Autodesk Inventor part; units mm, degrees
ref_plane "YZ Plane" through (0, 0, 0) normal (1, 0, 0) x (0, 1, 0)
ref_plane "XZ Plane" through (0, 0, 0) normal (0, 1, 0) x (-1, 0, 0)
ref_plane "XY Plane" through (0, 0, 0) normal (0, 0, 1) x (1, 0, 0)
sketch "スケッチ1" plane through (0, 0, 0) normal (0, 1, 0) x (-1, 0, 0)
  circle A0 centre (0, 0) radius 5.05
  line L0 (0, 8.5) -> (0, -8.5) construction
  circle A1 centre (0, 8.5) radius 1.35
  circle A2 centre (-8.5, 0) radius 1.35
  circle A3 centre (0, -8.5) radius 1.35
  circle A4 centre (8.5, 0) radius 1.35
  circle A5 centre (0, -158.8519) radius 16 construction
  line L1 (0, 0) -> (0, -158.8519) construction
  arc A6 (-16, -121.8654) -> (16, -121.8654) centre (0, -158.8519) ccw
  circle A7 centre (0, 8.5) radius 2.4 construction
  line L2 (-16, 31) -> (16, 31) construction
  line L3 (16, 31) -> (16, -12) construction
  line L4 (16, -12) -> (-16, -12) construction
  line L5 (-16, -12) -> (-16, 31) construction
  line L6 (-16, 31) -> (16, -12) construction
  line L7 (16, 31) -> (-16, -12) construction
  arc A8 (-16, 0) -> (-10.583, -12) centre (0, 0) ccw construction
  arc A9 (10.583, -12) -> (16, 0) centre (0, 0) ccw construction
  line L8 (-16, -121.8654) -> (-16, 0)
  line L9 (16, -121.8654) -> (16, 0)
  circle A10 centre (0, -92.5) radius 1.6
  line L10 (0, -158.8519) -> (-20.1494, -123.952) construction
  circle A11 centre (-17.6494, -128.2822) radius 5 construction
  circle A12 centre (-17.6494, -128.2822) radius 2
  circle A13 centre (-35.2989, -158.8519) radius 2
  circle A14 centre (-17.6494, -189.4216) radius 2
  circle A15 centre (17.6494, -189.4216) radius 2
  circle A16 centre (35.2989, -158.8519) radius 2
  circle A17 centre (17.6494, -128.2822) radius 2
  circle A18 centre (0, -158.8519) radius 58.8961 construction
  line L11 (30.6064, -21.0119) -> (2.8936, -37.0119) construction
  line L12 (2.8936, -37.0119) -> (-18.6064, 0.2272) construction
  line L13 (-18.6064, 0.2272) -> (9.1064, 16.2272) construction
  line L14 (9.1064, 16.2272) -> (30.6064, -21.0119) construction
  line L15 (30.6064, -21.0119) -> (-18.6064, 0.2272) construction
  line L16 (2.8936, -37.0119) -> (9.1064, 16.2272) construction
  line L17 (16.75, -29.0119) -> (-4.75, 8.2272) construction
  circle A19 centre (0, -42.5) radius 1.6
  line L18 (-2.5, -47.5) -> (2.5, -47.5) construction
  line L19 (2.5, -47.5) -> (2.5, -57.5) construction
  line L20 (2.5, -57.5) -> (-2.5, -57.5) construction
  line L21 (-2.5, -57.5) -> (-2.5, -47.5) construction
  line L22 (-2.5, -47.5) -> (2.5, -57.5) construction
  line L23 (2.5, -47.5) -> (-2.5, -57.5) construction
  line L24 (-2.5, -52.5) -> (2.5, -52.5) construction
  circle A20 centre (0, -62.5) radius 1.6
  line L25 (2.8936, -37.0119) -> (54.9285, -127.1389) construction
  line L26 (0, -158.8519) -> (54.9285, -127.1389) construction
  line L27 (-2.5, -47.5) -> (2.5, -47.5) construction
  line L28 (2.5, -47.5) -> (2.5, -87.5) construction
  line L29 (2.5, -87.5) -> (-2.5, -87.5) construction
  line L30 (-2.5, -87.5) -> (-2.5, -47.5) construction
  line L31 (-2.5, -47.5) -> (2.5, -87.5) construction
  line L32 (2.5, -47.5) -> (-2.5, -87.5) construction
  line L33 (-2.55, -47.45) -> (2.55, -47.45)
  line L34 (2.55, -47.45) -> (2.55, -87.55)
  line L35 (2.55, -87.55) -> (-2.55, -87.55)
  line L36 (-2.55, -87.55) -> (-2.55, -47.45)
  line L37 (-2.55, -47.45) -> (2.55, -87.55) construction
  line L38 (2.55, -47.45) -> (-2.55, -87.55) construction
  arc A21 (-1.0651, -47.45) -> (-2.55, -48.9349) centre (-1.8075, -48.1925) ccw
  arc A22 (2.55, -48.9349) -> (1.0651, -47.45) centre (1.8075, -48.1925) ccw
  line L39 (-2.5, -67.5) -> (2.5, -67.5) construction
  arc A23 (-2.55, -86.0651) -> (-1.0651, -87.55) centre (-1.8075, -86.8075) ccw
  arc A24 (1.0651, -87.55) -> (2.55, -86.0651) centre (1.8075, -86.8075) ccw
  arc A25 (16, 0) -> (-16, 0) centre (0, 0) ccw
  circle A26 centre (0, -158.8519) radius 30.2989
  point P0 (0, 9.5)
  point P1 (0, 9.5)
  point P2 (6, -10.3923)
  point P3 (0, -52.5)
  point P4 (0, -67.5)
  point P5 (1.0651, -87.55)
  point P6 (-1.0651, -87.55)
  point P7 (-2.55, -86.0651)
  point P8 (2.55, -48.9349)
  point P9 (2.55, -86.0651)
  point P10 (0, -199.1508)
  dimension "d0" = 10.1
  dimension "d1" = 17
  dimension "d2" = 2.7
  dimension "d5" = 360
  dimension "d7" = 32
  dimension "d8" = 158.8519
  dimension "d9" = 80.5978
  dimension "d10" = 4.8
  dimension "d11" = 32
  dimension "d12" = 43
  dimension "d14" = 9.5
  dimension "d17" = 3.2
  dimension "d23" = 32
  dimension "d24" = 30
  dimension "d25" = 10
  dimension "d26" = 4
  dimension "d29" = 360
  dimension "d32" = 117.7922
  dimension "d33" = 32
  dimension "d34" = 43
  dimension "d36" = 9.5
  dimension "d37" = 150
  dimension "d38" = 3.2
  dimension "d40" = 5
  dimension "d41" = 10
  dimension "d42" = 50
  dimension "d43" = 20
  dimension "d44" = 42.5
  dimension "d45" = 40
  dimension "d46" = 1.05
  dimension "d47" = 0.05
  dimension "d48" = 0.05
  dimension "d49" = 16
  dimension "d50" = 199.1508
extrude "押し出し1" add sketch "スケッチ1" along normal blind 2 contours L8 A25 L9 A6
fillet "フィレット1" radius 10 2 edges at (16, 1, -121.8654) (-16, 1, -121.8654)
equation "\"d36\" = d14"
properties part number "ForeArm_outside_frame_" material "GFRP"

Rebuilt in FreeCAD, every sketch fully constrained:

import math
import FreeCAD as App
import Part
import Sketcher
from FreeCAD import Vector


def edges_at(feature, points):
    """Names of the edges that pass closest to the given points."""
    edges = feature.Shape.Edges
    near = lambda p: min(range(len(edges)), key=lambda i: edges[i].distToShape(Part.Vertex(*p))[0])
    return sorted({f"Edge{near(p) + 1}" for p in points})

doc = App.newDocument("Part")
params = doc.addObject("Spreadsheet::Sheet", "Params")
for row, (alias, value) in enumerate([
    ("sketch1_diameter", "4 mm"),
    ("sketch1_radius", "16 mm"),
    ("sketch1_diameter2", "3.2 mm"),
    ("sketch1_diameter3", "2.7 mm"),
    ("sketch1_diameter4", "10.1 mm"),
    ("pad1_length", "2 mm"),
    ("fillet_radius", "10 mm"),
], start=1):
    params.set(f"A{row}", alias)
    params.set(f"B{row}", "=" + value)
    params.setAlias(f"B{row}", alias)

body = doc.addObject("PartDesign::Body", "Body")

sketch1 = body.newObject("Sketcher::SketchObject", "Sketch")
sketch1.AttachmentSupport = (doc.getObject("XZ_Plane"), [""])
sketch1.MapMode = "FlatFace"
sketch1.addGeometry([
    Part.LineSegment(Vector(16, 0, 0), Vector(16, -121.9, 0)),
    Part.ArcOfCircle(Part.Circle(Vector(0, -158.9, 0), Vector(0, 0, 1), 40.3), math.radians(113), math.radians(427)),
    Part.LineSegment(Vector(-16, -121.9, 0), Vector(-16, 0, 0)),
    Part.ArcOfCircle(Part.Circle(Vector(0, 0, 0), Vector(0, 0, 1), 16), math.radians(0), math.radians(180)),
    Part.Circle(Vector(35.3, -158.9, 0), Vector(0, 0, 1), 2),
    Part.Circle(Vector(17.6, -189.4, 0), Vector(0, 0, 1), 2),
    Part.Circle(Vector(17.6, -128.3, 0), Vector(0, 0, 1), 2),
    Part.Circle(Vector(-17.6, -189.4, 0), Vector(0, 0, 1), 2),
    Part.Circle(Vector(0, -158.9, 0), Vector(0, 0, 1), 30.3),
    Part.Circle(Vector(-35.3, -158.9, 0), Vector(0, 0, 1), 2),
    Part.Circle(Vector(-17.6, -128.3, 0), Vector(0, 0, 1), 2),
    Part.Circle(Vector(0, -92.5, 0), Vector(0, 0, 1), 1.6),
    Part.Circle(Vector(8.5, 0, 0), Vector(0, 0, 1), 1.4),
    Part.ArcOfCircle(Part.Circle(Vector(1.8, -48.2, 0), Vector(0, 0, 1), 1), math.radians(-45), math.radians(135)),
    Part.LineSegment(Vector(1.1, -47.5, 0), Vector(-1.1, -47.5, 0)),
    Part.ArcOfCircle(Part.Circle(Vector(-1.8, -48.2, 0), Vector(0, 0, 1), 1), math.radians(45), math.radians(225)),
    Part.LineSegment(Vector(-2.5, -48.9, 0), Vector(-2.5, -86.1, 0)),
    Part.ArcOfCircle(Part.Circle(Vector(-1.8, -86.8, 0), Vector(0, 0, 1), 1), math.radians(135), math.radians(315)),
    Part.LineSegment(Vector(-1.1, -87.5, 0), Vector(1.1, -87.5, 0)),
    Part.ArcOfCircle(Part.Circle(Vector(1.8, -86.8, 0), Vector(0, 0, 1), 1), math.radians(-135), math.radians(45)),
    Part.LineSegment(Vector(2.5, -86.1, 0), Vector(2.5, -48.9, 0)),
    Part.Circle(Vector(0, -42.5, 0), Vector(0, 0, 1), 1.6),
    Part.Circle(Vector(0, -8.5, 0), Vector(0, 0, 1), 1.4),
    Part.Circle(Vector(0, 0, 0), Vector(0, 0, 1), 5),
    Part.Circle(Vector(-8.5, 0, 0), Vector(0, 0, 1), 1.4),
    Part.Circle(Vector(0, 8.5, 0), Vector(0, 0, 1), 1.4),
], False)
sketch1.addConstraint([
    Sketcher.Constraint("Coincident", 0, 2, 1, 2),
    Sketcher.Constraint("Coincident", 1, 1, 2, 1),
    Sketcher.Constraint("Tangent", 2, 2, 3, 2),
    Sketcher.Constraint("Tangent", 3, 1, 0, 1),
    Sketcher.Constraint("Coincident", 13, 2, 14, 1),
    Sketcher.Constraint("Coincident", 14, 2, 15, 1),
    Sketcher.Constraint("Coincident", 15, 2, 16, 1),
    Sketcher.Constraint("Coincident", 16, 2, 17, 1),
    Sketcher.Constraint("Coincident", 17, 2, 18, 1),
    Sketcher.Constraint("Coincident", 18, 2, 19, 1),
    Sketcher.Constraint("Coincident", 19, 2, 20, 1),
    Sketcher.Constraint("Coincident", 20, 2, 13, 1),
    Sketcher.Constraint("Vertical", 0),
    Sketcher.Constraint("Vertical", 2),
    Sketcher.Constraint("Horizontal", 14),
    Sketcher.Constraint("Vertical", 16),
    Sketcher.Constraint("Horizontal", 18),
    Sketcher.Constraint("Vertical", 20),
    Sketcher.Constraint("Coincident", 3, 3, -1, 1),
    Sketcher.Constraint("Coincident", 23, 3, -1, 1),
    Sketcher.Constraint("Coincident", 8, 3, 1, 3),
    Sketcher.Constraint("Equal", 4, 5),
    Sketcher.Constraint("Equal", 5, 6),
    Sketcher.Constraint("Equal", 6, 7),
    Sketcher.Constraint("Equal", 7, 9),
    Sketcher.Constraint("Equal", 9, 10),
    Sketcher.Constraint("Equal", 13, 15),
    Sketcher.Constraint("Equal", 15, 17),
    Sketcher.Constraint("Equal", 17, 19),
    Sketcher.Constraint("Equal", 11, 21),
    Sketcher.Constraint("Equal", 12, 22),
    Sketcher.Constraint("Equal", 22, 24),
    Sketcher.Constraint("Equal", 24, 25),
    Sketcher.Constraint("Symmetric", 12, 3, 24, 3, -1, 1),
    Sketcher.Constraint("Symmetric", 22, 3, 25, 3, -1, 1),
    Sketcher.Constraint("Symmetric", 5, 3, 7, 3, -2),
    Sketcher.Constraint("Symmetric", 4, 3, 9, 3, -2),
    Sketcher.Constraint("Symmetric", 6, 3, 10, 3, -2),
    Sketcher.Constraint("Symmetric", 13, 3, 15, 3, -2),
    Sketcher.Constraint("Symmetric", 17, 3, 19, 3, -2),
    Sketcher.Constraint("PointOnObject", 1, 3, -2),
    Sketcher.Constraint("PointOnObject", 11, 3, -2),
    Sketcher.Constraint("PointOnObject", 12, 3, -1),
    Sketcher.Constraint("PointOnObject", 21, 3, -2),
    Sketcher.Constraint("PointOnObject", 22, 3, -2),
    Sketcher.Constraint("Horizontal", 1, 3, 4, 3),
    Sketcher.Constraint("Horizontal", 16, 2, 19, 2),
    Sketcher.Constraint("Vertical", 5, 3, 6, 3),
    Sketcher.Constraint("Vertical", 15, 3, 17, 3),
    Sketcher.Constraint("Vertical", 14, 2, 17, 2),
    Sketcher.Constraint("Diameter", 4, 4.0),
    Sketcher.Constraint("Radius", 3, 16.0),
    Sketcher.Constraint("Diameter", 11, 3.2),
    Sketcher.Constraint("Diameter", 12, 2.7),
    Sketcher.Constraint("Diameter", 23, 10.1),
    Sketcher.Constraint("Radius", 13, 1.05),
    Sketcher.Constraint("Radius", 1, 40.299),
    Sketcher.Constraint("DistanceX", 24, 3, 12, 3, 17.0),
    Sketcher.Constraint("DistanceY", 22, 3, 25, 3, 17.0),
    Sketcher.Constraint("DistanceY", 21, 3, -1, 1, 42.5),
    Sketcher.Constraint("DistanceY", 1, 3, -1, 1, 158.852),
    Sketcher.Constraint("Diameter", 8, 60.5978),
    Sketcher.Constraint("DistanceY", 11, 3, -1, 1, 92.5),
    Sketcher.Constraint("DistanceX", 16, 2, 19, 2, 5.1),
    Sketcher.Constraint("DistanceY", 13, 2, -1, 1, 47.45),
    Sketcher.Constraint("DistanceY", 17, 2, -1, 1, 87.55),
    Sketcher.Constraint("DistanceX", 14, 2, 14, 1, 2.1302),
    Sketcher.Constraint("DistanceX", -1, 1, 4, 3, 35.299),
    Sketcher.Constraint("DistanceX", 13, 3, 6, 3, 15.842),
    Sketcher.Constraint("DistanceX", 10, 3, 13, 3, 19.457),
    Sketcher.Constraint("DistanceY", 5, 3, -1, 1, 189.4216),
    Sketcher.Constraint("DistanceY", 6, 3, -1, 1, 128.2822),
])
sketch1.setExpression("Constraints[50]", "Params.sketch1_diameter")
sketch1.setExpression("Constraints[51]", "Params.sketch1_radius")
sketch1.setExpression("Constraints[52]", "Params.sketch1_diameter2")
sketch1.setExpression("Constraints[53]", "Params.sketch1_diameter3")
sketch1.setExpression("Constraints[54]", "Params.sketch1_diameter4")
pad1 = body.newObject("PartDesign::Pad", "Pad")
pad1.Profile = sketch1
pad1.setExpression("Length", "Params.pad1_length")
pad1.Reversed = True
doc.recompute()

fillet = body.newObject("PartDesign::Fillet", "Fillet")
fillet.Base = (pad1, edges_at(pad1, [(16, 1, -121.865), (-16, 1, -121.865)]))
fillet.setExpression("Radius", "Params.fillet_radius")

doc.recompute()
